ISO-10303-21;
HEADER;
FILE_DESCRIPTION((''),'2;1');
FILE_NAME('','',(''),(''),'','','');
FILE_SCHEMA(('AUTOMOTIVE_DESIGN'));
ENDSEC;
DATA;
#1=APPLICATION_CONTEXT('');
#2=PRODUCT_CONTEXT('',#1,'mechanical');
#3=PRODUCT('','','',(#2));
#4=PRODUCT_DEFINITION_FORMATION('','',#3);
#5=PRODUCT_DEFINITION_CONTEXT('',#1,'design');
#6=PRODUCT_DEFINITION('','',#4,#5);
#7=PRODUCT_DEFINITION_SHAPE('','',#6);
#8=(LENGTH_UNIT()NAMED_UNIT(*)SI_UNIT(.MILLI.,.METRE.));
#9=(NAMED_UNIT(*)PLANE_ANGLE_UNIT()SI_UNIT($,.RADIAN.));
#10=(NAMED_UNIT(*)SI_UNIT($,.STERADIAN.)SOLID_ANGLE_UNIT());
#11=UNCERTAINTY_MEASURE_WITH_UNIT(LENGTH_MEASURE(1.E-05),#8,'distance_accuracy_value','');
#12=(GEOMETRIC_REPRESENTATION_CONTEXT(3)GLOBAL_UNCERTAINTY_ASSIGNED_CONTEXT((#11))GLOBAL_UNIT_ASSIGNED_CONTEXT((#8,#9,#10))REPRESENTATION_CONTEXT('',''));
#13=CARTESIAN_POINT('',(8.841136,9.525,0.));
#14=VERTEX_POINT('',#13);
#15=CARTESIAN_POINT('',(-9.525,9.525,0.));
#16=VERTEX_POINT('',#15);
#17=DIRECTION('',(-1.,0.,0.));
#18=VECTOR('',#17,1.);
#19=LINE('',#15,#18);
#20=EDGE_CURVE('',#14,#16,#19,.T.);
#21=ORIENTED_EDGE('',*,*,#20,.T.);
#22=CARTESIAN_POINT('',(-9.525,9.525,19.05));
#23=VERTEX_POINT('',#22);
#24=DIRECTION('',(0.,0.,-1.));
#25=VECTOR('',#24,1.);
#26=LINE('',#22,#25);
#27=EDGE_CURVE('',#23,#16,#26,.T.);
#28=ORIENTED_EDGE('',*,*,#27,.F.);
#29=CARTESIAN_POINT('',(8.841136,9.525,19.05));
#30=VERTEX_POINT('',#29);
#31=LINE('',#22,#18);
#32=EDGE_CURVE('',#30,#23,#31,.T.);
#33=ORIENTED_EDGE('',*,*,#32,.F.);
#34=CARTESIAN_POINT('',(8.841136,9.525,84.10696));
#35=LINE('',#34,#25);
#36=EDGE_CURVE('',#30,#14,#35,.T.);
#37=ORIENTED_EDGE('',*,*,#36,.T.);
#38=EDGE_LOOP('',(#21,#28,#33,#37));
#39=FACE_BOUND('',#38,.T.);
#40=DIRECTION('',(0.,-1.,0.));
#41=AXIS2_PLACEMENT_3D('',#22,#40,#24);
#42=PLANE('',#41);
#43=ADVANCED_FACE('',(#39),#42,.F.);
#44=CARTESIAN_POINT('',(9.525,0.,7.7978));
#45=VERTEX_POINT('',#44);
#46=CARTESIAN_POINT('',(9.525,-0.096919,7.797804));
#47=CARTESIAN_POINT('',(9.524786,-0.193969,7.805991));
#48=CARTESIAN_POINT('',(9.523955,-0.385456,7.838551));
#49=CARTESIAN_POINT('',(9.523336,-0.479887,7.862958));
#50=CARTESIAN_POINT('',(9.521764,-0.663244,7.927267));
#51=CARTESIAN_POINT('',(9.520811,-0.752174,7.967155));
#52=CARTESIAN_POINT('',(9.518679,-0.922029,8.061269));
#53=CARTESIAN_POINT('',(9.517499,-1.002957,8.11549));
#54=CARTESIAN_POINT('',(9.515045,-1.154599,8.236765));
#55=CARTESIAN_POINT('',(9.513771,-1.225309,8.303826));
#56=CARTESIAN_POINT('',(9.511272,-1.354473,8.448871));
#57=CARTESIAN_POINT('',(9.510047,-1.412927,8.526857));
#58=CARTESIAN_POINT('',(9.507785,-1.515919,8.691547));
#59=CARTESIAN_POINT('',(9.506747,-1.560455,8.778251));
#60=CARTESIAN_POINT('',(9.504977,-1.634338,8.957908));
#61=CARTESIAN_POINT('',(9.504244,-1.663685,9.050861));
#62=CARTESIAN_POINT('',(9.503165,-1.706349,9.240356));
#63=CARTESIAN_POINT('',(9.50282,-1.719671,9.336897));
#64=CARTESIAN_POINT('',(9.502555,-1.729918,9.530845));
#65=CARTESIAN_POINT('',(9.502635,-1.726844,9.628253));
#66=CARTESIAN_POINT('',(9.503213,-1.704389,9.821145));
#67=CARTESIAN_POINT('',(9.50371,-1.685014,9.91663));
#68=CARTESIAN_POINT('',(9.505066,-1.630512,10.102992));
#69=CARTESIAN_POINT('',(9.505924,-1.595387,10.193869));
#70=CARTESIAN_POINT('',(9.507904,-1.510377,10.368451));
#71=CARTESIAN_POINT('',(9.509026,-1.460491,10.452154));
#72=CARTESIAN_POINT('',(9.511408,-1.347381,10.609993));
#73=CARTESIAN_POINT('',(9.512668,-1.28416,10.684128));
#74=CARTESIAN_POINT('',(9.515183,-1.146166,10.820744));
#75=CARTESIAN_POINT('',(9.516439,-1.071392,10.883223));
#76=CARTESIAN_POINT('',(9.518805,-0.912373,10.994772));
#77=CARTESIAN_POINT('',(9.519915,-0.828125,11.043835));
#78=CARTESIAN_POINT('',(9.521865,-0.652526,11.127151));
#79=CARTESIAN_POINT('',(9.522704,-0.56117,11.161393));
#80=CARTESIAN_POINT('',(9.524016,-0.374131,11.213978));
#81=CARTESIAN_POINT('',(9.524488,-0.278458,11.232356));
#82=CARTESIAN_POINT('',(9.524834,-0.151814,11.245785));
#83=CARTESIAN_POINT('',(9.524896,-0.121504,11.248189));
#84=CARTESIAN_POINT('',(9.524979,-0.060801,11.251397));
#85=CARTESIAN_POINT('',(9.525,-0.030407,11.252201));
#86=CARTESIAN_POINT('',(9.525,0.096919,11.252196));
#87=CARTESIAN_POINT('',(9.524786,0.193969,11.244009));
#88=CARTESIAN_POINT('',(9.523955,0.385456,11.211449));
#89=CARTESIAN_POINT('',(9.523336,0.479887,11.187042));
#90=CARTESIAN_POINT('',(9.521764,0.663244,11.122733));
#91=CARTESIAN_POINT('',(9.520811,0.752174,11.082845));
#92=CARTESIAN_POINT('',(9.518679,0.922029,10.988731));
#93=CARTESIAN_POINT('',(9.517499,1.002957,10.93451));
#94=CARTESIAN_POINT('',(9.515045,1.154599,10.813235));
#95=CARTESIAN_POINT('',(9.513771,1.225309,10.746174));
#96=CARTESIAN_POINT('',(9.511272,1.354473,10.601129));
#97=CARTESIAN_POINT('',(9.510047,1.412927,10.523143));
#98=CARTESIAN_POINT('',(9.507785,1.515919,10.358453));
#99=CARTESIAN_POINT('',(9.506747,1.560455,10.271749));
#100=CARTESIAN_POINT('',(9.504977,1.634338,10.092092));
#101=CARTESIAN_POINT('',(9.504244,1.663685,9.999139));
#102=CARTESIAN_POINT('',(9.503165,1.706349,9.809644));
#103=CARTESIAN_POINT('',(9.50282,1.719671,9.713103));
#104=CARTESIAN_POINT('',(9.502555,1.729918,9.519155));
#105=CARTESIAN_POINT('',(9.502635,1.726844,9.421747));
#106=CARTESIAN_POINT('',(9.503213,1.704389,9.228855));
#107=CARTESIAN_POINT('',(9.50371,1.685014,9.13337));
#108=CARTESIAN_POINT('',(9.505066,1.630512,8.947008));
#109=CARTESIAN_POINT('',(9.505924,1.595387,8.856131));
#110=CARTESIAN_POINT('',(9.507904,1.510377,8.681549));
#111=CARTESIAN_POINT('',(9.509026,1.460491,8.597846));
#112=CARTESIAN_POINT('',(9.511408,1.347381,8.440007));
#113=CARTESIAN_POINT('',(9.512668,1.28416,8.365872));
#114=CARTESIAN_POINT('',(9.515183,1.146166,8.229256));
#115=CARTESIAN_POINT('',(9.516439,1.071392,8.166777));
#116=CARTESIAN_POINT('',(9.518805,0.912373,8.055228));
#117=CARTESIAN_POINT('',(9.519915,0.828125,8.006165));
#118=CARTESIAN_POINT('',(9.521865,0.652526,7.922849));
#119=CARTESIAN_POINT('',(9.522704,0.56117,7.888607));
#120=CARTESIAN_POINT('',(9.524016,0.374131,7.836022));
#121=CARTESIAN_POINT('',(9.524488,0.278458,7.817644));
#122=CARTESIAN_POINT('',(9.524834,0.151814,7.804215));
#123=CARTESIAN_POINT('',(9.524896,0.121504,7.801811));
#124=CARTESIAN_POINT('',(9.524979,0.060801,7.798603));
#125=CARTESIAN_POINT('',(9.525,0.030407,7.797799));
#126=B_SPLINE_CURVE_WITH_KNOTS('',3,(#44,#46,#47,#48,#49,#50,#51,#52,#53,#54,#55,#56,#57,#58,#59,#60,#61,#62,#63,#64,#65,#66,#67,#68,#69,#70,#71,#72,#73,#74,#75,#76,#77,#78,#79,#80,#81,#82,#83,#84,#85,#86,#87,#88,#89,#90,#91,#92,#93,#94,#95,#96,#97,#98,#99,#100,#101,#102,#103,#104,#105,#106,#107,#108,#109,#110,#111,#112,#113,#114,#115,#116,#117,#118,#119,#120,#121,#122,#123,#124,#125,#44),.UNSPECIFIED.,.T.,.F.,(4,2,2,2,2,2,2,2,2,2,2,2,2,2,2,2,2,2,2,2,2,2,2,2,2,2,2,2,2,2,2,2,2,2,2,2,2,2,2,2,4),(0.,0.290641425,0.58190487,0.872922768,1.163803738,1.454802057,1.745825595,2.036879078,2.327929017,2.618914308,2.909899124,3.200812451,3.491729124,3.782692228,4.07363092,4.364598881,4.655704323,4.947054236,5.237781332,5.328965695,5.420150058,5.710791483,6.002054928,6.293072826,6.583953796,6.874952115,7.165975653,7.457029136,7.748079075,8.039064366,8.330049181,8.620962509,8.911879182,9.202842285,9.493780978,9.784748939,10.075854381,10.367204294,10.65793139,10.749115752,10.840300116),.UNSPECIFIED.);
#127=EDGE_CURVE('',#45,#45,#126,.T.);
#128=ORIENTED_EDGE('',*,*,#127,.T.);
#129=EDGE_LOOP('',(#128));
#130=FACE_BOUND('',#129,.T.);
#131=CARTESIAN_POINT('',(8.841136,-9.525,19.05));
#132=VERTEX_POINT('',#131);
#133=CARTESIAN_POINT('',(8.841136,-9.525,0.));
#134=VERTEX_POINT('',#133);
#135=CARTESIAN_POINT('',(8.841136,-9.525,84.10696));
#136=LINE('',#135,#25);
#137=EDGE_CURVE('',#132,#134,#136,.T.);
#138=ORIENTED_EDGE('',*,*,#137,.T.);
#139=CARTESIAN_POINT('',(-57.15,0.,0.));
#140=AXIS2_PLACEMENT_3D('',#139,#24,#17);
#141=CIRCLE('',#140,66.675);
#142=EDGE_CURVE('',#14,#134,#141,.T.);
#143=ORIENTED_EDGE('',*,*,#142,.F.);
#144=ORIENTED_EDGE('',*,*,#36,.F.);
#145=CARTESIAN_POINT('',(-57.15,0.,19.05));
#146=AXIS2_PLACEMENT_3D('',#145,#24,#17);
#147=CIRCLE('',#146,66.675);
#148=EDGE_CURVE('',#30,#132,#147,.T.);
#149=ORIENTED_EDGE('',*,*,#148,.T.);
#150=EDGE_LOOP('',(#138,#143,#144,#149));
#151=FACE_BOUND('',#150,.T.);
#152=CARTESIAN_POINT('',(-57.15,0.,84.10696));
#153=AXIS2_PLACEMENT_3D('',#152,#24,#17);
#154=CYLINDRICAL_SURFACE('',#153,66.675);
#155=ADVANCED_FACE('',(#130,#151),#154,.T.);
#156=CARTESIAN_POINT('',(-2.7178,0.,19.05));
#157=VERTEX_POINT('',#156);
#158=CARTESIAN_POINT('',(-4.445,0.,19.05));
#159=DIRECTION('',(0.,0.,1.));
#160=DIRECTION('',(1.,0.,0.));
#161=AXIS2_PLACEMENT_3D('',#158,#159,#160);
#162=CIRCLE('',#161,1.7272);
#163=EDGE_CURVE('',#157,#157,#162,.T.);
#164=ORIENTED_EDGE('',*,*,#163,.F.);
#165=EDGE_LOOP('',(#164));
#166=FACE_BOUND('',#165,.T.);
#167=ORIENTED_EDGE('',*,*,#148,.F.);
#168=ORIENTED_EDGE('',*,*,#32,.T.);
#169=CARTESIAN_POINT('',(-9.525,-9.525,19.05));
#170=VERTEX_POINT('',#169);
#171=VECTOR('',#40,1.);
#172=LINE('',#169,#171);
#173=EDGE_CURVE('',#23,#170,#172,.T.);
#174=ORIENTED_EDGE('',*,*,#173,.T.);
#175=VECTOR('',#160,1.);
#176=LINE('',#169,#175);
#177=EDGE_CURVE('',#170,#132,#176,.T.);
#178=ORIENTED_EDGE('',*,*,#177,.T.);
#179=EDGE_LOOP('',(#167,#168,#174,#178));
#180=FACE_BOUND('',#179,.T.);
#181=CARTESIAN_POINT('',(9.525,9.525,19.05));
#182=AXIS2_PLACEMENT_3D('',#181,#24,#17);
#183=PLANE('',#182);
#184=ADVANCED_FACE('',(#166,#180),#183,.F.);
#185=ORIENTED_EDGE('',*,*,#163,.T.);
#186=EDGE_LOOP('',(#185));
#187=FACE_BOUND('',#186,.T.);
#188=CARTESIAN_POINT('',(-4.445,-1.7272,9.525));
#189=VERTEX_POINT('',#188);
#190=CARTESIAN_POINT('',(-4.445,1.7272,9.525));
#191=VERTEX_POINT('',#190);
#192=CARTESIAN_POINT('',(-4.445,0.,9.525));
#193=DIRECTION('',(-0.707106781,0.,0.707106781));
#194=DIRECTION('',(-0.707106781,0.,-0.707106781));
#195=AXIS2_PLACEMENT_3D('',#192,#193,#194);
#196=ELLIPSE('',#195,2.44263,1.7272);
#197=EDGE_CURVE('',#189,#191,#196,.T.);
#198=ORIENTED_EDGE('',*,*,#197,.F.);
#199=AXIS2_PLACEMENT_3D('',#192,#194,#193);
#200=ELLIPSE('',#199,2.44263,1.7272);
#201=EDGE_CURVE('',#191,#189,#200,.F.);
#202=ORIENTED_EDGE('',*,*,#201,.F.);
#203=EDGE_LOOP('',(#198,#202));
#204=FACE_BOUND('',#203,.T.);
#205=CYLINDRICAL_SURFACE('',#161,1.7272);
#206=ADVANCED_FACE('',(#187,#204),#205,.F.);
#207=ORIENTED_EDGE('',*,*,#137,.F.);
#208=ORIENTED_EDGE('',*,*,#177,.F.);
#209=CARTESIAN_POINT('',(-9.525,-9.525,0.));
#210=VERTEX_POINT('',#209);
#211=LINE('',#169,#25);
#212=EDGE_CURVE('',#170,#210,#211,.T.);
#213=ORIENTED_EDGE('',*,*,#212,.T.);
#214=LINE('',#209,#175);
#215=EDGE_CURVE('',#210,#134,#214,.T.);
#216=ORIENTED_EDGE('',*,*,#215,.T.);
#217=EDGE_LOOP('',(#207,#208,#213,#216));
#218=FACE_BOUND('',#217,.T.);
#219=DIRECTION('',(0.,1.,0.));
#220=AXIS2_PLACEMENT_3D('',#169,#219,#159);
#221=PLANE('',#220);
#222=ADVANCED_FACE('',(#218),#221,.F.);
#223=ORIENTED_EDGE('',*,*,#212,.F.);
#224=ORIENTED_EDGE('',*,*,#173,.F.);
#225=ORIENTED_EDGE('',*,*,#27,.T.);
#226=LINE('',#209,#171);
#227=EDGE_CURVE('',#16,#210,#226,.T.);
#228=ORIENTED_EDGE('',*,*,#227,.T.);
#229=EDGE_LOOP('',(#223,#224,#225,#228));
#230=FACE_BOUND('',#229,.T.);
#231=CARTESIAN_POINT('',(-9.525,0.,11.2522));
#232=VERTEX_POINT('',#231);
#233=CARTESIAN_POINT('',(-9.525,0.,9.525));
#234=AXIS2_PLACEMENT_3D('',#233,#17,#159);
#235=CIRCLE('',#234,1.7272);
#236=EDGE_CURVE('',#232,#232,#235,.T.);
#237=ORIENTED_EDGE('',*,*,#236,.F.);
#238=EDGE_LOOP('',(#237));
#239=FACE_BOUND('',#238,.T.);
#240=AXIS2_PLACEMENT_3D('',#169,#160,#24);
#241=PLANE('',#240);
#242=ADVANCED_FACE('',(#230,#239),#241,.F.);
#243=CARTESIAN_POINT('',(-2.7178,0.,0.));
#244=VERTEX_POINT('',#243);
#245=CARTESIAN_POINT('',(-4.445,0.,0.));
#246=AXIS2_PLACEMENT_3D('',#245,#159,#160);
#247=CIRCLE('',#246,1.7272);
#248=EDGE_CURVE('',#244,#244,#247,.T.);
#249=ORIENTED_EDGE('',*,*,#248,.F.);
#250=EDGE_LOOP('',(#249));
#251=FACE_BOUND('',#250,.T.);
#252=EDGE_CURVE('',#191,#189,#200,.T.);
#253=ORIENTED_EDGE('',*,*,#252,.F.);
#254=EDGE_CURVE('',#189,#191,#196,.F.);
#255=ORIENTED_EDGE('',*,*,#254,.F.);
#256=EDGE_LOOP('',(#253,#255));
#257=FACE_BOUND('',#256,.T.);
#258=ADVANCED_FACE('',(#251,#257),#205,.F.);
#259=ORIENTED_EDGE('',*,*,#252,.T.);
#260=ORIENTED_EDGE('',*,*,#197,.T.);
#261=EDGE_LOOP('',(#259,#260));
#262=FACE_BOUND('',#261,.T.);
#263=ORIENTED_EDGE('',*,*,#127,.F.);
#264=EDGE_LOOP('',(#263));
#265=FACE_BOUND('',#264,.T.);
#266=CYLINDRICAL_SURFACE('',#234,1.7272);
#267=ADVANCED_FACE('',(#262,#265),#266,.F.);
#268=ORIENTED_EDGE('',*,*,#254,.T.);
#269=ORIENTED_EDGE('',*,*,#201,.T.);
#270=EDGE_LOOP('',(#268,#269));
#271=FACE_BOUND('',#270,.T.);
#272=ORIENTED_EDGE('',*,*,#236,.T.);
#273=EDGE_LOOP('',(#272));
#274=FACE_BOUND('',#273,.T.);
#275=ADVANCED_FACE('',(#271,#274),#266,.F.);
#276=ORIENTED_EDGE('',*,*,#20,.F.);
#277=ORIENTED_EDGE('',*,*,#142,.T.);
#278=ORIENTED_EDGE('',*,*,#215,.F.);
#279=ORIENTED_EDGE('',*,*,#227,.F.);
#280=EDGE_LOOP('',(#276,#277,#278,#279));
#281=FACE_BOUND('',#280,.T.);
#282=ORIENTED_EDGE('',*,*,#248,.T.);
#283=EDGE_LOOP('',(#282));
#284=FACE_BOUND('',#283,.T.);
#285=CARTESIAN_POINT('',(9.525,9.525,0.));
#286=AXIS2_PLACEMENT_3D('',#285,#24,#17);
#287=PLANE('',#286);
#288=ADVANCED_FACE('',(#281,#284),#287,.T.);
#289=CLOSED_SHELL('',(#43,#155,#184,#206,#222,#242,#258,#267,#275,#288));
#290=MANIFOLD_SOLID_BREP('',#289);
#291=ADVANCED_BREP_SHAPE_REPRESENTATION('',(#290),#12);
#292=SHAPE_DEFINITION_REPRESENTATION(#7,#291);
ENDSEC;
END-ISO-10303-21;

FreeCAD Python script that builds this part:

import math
import FreeCAD as App
import Part
import Sketcher
from FreeCAD import Vector
Q = App.Units.Quantity


def add_polygon(sketch, points):
    """Adds a closed chain of lines whose ends are joined by coincident constraints."""
    first, n = sketch.GeometryCount, len(points)
    for a, b in zip(points, points[1:] + points[:1]):
        sketch.addGeometry(Part.LineSegment(App.Vector(*a, 0), App.Vector(*b, 0)), False)
    for i in range(n):
        sketch.addConstraint(Sketcher.Constraint("Coincident", first + i, 2, first + (i + 1) % n, 1))

doc = App.newDocument("Part")
params = doc.addObject("Spreadsheet::Sheet", "Params")
for row, (alias, value) in enumerate([
    ("sketch1_width", "0.75 in"),
    ("pad1_length", "0.75 in"),
    ("sketch2_diameter", "0.136 in"),
    ("hole_diameter", "0.136 in"),
    ("sketch3_radius", "2.625 in"),
    ("sketch3_height", "0.375 in"),
    ("sketch4_diameter", "0.136 in"),
    ("hole2_diameter", "0.136 in"),
], start=1):
    params.set(f"A{row}", alias)
    params.set(f"B{row}", "=" + value)
    params.setAlias(f"B{row}", alias)

body = doc.addObject("PartDesign::Body", "Body")

# Sketch on XY plane
sketch1 = body.newObject("Sketcher::SketchObject", "Sketch")
sketch1.AttachmentSupport = (doc.getObject("XY_Plane"), [""])
sketch1.MapMode = "FlatFace"
add_polygon(sketch1, [(-10, 10), (-10, -10), (10, -10), (10, 10)])  # lines 0-3
sketch1.addConstraint([
    Sketcher.Constraint("Vertical", 0),
    Sketcher.Constraint("Horizontal", 1),
    Sketcher.Constraint("Vertical", 2),
    Sketcher.Constraint("Horizontal", 3),
    Sketcher.Constraint("Symmetric", 0, 2, 2, 2, -1, 1),
    Sketcher.Constraint("Equal", 3, 0),
    Sketcher.Constraint("DistanceX", 1, 1, 1, 2, Q("0.75 in")),
])
sketch1.setExpression("Constraints[10]", "Params.sketch1_width")
pad1 = body.newObject("PartDesign::Pad", "Pad")
pad1.Profile = sketch1
pad1.setExpression("Length", "Params.pad1_length")

# Sketch on YZ plane
sketch2 = body.newObject("Sketcher::SketchObject", "Sketch001")
sketch2.AttachmentSupport = (doc.getObject("YZ_Plane"), [""])
sketch2.MapMode = "FlatFace"
sketch2.AttachmentOffset = App.Placement(Vector(0, 0, -0.375 * 25.4), App.Rotation())
sketch2.addGeometry(Part.Circle(Vector(0, 9.5, 0), Vector(0, 0, 1), 1.7), False)
sketch2.addConstraint([
    Sketcher.Constraint("PointOnObject", 0, 3, -2),
    Sketcher.Constraint("Diameter", 0, Q("0.136 in")),
    Sketcher.Constraint("DistanceY", -1, 1, 0, 3, Q("0.375 in")),
])
sketch2.setExpression("Constraints[1]", "Params.sketch2_diameter")
doc.recompute()
hole = body.newObject("PartDesign::Hole", "Hole")
hole.Profile = sketch2
hole.ThreadType = "None"
hole.setExpression("Diameter", "Params.hole_diameter")
hole.DepthType = "ThroughAll"
hole.Reversed = True

# Sketch on XY plane
sketch3 = body.newObject("Sketcher::SketchObject", "Sketch002")
sketch3.AttachmentSupport = (doc.getObject("XY_Plane"), [""])
sketch3.MapMode = "FlatFace"
sketch3.AttachmentOffset = App.Placement(Vector(0, 0, 0.75 * 25.4), App.Rotation())
sketch3.addGeometry([
    Part.LineSegment(Vector(9.5, -9.5, 0), Vector(9.5, 0, 0)),  # 0
    Part.ArcOfCircle(Part.Circle(Vector(-57.1, 0, 0), Vector(0, 0, 1), 66.7), math.radians(-8.21), math.radians(0)),  # 1
    Part.LineSegment(Vector(8.8, -9.5, 0), Vector(9.5, -9.5, 0)),  # 2
    Part.ArcOfCircle(Part.Circle(Vector(-57.1, 0, 0), Vector(0, 0, 1), 66.7), math.radians(0), math.radians(8.21)),  # 3
    Part.LineSegment(Vector(9.5, 0, 0), Vector(9.5, 9.5, 0)),  # 4
    Part.LineSegment(Vector(9.5, 9.5, 0), Vector(8.8, 9.5, 0)),  # 5
], False)
sketch3.addConstraint([
    Sketcher.Constraint("Tangent", 0, 2, 1, 2),
    Sketcher.Constraint("Coincident", 1, 1, 2, 1),
    Sketcher.Constraint("Coincident", 2, 2, 0, 1),
    Sketcher.Constraint("Tangent", 3, 1, 4, 1),
    Sketcher.Constraint("Coincident", 4, 2, 5, 1),
    Sketcher.Constraint("Coincident", 5, 2, 3, 2),
    Sketcher.Constraint("Vertical", 0),
    Sketcher.Constraint("Horizontal", 2),
    Sketcher.Constraint("Vertical", 4),
    Sketcher.Constraint("Horizontal", 5),
    Sketcher.Constraint("Coincident", 3, 3, 1, 3),
    Sketcher.Constraint("Equal", 1, 3),
    Sketcher.Constraint("Symmetric", 1, 1, 5, 2, -1),
    Sketcher.Constraint("Radius", 1, Q("2.625 in")),
    Sketcher.Constraint("DistanceY", 0, 1, 0, 2, Q("0.375 in")),
    Sketcher.Constraint("DistanceX", 1, 3, -1, 1, Q("2.25 in")),
])
sketch3.setExpression("Constraints[13]", "Params.sketch3_radius")
sketch3.setExpression("Constraints[14]", "Params.sketch3_height")
pocket1 = body.newObject("PartDesign::Pocket", "Pocket")
pocket1.Profile = sketch3
pocket1.Type = "ThroughAll"
pocket1.Midplane = True

# Sketch on XY plane
sketch4 = body.newObject("Sketcher::SketchObject", "Sketch003")
sketch4.AttachmentSupport = (doc.getObject("XY_Plane"), [""])
sketch4.MapMode = "FlatFace"
sketch4.AttachmentOffset = App.Placement(Vector(0, 0, 0.75 * 25.4), App.Rotation())
sketch4.addGeometry(Part.Circle(Vector(-4.4, 0, 0), Vector(0, 0, 1), 1.7), False)
sketch4.addConstraint([
    Sketcher.Constraint("PointOnObject", 0, 3, -1),
    Sketcher.Constraint("Diameter", 0, Q("0.136 in")),
    Sketcher.Constraint("DistanceX", 0, 3, -1, 1, Q("0.175 in")),
])
sketch4.setExpression("Constraints[1]", "Params.sketch4_diameter")
doc.recompute()
hole2 = body.newObject("PartDesign::Hole", "Hole001")
hole2.Profile = sketch4
hole2.ThreadType = "None"
hole2.setExpression("Diameter", "Params.hole2_diameter")
hole2.DepthType = "ThroughAll"

doc.recompute()
